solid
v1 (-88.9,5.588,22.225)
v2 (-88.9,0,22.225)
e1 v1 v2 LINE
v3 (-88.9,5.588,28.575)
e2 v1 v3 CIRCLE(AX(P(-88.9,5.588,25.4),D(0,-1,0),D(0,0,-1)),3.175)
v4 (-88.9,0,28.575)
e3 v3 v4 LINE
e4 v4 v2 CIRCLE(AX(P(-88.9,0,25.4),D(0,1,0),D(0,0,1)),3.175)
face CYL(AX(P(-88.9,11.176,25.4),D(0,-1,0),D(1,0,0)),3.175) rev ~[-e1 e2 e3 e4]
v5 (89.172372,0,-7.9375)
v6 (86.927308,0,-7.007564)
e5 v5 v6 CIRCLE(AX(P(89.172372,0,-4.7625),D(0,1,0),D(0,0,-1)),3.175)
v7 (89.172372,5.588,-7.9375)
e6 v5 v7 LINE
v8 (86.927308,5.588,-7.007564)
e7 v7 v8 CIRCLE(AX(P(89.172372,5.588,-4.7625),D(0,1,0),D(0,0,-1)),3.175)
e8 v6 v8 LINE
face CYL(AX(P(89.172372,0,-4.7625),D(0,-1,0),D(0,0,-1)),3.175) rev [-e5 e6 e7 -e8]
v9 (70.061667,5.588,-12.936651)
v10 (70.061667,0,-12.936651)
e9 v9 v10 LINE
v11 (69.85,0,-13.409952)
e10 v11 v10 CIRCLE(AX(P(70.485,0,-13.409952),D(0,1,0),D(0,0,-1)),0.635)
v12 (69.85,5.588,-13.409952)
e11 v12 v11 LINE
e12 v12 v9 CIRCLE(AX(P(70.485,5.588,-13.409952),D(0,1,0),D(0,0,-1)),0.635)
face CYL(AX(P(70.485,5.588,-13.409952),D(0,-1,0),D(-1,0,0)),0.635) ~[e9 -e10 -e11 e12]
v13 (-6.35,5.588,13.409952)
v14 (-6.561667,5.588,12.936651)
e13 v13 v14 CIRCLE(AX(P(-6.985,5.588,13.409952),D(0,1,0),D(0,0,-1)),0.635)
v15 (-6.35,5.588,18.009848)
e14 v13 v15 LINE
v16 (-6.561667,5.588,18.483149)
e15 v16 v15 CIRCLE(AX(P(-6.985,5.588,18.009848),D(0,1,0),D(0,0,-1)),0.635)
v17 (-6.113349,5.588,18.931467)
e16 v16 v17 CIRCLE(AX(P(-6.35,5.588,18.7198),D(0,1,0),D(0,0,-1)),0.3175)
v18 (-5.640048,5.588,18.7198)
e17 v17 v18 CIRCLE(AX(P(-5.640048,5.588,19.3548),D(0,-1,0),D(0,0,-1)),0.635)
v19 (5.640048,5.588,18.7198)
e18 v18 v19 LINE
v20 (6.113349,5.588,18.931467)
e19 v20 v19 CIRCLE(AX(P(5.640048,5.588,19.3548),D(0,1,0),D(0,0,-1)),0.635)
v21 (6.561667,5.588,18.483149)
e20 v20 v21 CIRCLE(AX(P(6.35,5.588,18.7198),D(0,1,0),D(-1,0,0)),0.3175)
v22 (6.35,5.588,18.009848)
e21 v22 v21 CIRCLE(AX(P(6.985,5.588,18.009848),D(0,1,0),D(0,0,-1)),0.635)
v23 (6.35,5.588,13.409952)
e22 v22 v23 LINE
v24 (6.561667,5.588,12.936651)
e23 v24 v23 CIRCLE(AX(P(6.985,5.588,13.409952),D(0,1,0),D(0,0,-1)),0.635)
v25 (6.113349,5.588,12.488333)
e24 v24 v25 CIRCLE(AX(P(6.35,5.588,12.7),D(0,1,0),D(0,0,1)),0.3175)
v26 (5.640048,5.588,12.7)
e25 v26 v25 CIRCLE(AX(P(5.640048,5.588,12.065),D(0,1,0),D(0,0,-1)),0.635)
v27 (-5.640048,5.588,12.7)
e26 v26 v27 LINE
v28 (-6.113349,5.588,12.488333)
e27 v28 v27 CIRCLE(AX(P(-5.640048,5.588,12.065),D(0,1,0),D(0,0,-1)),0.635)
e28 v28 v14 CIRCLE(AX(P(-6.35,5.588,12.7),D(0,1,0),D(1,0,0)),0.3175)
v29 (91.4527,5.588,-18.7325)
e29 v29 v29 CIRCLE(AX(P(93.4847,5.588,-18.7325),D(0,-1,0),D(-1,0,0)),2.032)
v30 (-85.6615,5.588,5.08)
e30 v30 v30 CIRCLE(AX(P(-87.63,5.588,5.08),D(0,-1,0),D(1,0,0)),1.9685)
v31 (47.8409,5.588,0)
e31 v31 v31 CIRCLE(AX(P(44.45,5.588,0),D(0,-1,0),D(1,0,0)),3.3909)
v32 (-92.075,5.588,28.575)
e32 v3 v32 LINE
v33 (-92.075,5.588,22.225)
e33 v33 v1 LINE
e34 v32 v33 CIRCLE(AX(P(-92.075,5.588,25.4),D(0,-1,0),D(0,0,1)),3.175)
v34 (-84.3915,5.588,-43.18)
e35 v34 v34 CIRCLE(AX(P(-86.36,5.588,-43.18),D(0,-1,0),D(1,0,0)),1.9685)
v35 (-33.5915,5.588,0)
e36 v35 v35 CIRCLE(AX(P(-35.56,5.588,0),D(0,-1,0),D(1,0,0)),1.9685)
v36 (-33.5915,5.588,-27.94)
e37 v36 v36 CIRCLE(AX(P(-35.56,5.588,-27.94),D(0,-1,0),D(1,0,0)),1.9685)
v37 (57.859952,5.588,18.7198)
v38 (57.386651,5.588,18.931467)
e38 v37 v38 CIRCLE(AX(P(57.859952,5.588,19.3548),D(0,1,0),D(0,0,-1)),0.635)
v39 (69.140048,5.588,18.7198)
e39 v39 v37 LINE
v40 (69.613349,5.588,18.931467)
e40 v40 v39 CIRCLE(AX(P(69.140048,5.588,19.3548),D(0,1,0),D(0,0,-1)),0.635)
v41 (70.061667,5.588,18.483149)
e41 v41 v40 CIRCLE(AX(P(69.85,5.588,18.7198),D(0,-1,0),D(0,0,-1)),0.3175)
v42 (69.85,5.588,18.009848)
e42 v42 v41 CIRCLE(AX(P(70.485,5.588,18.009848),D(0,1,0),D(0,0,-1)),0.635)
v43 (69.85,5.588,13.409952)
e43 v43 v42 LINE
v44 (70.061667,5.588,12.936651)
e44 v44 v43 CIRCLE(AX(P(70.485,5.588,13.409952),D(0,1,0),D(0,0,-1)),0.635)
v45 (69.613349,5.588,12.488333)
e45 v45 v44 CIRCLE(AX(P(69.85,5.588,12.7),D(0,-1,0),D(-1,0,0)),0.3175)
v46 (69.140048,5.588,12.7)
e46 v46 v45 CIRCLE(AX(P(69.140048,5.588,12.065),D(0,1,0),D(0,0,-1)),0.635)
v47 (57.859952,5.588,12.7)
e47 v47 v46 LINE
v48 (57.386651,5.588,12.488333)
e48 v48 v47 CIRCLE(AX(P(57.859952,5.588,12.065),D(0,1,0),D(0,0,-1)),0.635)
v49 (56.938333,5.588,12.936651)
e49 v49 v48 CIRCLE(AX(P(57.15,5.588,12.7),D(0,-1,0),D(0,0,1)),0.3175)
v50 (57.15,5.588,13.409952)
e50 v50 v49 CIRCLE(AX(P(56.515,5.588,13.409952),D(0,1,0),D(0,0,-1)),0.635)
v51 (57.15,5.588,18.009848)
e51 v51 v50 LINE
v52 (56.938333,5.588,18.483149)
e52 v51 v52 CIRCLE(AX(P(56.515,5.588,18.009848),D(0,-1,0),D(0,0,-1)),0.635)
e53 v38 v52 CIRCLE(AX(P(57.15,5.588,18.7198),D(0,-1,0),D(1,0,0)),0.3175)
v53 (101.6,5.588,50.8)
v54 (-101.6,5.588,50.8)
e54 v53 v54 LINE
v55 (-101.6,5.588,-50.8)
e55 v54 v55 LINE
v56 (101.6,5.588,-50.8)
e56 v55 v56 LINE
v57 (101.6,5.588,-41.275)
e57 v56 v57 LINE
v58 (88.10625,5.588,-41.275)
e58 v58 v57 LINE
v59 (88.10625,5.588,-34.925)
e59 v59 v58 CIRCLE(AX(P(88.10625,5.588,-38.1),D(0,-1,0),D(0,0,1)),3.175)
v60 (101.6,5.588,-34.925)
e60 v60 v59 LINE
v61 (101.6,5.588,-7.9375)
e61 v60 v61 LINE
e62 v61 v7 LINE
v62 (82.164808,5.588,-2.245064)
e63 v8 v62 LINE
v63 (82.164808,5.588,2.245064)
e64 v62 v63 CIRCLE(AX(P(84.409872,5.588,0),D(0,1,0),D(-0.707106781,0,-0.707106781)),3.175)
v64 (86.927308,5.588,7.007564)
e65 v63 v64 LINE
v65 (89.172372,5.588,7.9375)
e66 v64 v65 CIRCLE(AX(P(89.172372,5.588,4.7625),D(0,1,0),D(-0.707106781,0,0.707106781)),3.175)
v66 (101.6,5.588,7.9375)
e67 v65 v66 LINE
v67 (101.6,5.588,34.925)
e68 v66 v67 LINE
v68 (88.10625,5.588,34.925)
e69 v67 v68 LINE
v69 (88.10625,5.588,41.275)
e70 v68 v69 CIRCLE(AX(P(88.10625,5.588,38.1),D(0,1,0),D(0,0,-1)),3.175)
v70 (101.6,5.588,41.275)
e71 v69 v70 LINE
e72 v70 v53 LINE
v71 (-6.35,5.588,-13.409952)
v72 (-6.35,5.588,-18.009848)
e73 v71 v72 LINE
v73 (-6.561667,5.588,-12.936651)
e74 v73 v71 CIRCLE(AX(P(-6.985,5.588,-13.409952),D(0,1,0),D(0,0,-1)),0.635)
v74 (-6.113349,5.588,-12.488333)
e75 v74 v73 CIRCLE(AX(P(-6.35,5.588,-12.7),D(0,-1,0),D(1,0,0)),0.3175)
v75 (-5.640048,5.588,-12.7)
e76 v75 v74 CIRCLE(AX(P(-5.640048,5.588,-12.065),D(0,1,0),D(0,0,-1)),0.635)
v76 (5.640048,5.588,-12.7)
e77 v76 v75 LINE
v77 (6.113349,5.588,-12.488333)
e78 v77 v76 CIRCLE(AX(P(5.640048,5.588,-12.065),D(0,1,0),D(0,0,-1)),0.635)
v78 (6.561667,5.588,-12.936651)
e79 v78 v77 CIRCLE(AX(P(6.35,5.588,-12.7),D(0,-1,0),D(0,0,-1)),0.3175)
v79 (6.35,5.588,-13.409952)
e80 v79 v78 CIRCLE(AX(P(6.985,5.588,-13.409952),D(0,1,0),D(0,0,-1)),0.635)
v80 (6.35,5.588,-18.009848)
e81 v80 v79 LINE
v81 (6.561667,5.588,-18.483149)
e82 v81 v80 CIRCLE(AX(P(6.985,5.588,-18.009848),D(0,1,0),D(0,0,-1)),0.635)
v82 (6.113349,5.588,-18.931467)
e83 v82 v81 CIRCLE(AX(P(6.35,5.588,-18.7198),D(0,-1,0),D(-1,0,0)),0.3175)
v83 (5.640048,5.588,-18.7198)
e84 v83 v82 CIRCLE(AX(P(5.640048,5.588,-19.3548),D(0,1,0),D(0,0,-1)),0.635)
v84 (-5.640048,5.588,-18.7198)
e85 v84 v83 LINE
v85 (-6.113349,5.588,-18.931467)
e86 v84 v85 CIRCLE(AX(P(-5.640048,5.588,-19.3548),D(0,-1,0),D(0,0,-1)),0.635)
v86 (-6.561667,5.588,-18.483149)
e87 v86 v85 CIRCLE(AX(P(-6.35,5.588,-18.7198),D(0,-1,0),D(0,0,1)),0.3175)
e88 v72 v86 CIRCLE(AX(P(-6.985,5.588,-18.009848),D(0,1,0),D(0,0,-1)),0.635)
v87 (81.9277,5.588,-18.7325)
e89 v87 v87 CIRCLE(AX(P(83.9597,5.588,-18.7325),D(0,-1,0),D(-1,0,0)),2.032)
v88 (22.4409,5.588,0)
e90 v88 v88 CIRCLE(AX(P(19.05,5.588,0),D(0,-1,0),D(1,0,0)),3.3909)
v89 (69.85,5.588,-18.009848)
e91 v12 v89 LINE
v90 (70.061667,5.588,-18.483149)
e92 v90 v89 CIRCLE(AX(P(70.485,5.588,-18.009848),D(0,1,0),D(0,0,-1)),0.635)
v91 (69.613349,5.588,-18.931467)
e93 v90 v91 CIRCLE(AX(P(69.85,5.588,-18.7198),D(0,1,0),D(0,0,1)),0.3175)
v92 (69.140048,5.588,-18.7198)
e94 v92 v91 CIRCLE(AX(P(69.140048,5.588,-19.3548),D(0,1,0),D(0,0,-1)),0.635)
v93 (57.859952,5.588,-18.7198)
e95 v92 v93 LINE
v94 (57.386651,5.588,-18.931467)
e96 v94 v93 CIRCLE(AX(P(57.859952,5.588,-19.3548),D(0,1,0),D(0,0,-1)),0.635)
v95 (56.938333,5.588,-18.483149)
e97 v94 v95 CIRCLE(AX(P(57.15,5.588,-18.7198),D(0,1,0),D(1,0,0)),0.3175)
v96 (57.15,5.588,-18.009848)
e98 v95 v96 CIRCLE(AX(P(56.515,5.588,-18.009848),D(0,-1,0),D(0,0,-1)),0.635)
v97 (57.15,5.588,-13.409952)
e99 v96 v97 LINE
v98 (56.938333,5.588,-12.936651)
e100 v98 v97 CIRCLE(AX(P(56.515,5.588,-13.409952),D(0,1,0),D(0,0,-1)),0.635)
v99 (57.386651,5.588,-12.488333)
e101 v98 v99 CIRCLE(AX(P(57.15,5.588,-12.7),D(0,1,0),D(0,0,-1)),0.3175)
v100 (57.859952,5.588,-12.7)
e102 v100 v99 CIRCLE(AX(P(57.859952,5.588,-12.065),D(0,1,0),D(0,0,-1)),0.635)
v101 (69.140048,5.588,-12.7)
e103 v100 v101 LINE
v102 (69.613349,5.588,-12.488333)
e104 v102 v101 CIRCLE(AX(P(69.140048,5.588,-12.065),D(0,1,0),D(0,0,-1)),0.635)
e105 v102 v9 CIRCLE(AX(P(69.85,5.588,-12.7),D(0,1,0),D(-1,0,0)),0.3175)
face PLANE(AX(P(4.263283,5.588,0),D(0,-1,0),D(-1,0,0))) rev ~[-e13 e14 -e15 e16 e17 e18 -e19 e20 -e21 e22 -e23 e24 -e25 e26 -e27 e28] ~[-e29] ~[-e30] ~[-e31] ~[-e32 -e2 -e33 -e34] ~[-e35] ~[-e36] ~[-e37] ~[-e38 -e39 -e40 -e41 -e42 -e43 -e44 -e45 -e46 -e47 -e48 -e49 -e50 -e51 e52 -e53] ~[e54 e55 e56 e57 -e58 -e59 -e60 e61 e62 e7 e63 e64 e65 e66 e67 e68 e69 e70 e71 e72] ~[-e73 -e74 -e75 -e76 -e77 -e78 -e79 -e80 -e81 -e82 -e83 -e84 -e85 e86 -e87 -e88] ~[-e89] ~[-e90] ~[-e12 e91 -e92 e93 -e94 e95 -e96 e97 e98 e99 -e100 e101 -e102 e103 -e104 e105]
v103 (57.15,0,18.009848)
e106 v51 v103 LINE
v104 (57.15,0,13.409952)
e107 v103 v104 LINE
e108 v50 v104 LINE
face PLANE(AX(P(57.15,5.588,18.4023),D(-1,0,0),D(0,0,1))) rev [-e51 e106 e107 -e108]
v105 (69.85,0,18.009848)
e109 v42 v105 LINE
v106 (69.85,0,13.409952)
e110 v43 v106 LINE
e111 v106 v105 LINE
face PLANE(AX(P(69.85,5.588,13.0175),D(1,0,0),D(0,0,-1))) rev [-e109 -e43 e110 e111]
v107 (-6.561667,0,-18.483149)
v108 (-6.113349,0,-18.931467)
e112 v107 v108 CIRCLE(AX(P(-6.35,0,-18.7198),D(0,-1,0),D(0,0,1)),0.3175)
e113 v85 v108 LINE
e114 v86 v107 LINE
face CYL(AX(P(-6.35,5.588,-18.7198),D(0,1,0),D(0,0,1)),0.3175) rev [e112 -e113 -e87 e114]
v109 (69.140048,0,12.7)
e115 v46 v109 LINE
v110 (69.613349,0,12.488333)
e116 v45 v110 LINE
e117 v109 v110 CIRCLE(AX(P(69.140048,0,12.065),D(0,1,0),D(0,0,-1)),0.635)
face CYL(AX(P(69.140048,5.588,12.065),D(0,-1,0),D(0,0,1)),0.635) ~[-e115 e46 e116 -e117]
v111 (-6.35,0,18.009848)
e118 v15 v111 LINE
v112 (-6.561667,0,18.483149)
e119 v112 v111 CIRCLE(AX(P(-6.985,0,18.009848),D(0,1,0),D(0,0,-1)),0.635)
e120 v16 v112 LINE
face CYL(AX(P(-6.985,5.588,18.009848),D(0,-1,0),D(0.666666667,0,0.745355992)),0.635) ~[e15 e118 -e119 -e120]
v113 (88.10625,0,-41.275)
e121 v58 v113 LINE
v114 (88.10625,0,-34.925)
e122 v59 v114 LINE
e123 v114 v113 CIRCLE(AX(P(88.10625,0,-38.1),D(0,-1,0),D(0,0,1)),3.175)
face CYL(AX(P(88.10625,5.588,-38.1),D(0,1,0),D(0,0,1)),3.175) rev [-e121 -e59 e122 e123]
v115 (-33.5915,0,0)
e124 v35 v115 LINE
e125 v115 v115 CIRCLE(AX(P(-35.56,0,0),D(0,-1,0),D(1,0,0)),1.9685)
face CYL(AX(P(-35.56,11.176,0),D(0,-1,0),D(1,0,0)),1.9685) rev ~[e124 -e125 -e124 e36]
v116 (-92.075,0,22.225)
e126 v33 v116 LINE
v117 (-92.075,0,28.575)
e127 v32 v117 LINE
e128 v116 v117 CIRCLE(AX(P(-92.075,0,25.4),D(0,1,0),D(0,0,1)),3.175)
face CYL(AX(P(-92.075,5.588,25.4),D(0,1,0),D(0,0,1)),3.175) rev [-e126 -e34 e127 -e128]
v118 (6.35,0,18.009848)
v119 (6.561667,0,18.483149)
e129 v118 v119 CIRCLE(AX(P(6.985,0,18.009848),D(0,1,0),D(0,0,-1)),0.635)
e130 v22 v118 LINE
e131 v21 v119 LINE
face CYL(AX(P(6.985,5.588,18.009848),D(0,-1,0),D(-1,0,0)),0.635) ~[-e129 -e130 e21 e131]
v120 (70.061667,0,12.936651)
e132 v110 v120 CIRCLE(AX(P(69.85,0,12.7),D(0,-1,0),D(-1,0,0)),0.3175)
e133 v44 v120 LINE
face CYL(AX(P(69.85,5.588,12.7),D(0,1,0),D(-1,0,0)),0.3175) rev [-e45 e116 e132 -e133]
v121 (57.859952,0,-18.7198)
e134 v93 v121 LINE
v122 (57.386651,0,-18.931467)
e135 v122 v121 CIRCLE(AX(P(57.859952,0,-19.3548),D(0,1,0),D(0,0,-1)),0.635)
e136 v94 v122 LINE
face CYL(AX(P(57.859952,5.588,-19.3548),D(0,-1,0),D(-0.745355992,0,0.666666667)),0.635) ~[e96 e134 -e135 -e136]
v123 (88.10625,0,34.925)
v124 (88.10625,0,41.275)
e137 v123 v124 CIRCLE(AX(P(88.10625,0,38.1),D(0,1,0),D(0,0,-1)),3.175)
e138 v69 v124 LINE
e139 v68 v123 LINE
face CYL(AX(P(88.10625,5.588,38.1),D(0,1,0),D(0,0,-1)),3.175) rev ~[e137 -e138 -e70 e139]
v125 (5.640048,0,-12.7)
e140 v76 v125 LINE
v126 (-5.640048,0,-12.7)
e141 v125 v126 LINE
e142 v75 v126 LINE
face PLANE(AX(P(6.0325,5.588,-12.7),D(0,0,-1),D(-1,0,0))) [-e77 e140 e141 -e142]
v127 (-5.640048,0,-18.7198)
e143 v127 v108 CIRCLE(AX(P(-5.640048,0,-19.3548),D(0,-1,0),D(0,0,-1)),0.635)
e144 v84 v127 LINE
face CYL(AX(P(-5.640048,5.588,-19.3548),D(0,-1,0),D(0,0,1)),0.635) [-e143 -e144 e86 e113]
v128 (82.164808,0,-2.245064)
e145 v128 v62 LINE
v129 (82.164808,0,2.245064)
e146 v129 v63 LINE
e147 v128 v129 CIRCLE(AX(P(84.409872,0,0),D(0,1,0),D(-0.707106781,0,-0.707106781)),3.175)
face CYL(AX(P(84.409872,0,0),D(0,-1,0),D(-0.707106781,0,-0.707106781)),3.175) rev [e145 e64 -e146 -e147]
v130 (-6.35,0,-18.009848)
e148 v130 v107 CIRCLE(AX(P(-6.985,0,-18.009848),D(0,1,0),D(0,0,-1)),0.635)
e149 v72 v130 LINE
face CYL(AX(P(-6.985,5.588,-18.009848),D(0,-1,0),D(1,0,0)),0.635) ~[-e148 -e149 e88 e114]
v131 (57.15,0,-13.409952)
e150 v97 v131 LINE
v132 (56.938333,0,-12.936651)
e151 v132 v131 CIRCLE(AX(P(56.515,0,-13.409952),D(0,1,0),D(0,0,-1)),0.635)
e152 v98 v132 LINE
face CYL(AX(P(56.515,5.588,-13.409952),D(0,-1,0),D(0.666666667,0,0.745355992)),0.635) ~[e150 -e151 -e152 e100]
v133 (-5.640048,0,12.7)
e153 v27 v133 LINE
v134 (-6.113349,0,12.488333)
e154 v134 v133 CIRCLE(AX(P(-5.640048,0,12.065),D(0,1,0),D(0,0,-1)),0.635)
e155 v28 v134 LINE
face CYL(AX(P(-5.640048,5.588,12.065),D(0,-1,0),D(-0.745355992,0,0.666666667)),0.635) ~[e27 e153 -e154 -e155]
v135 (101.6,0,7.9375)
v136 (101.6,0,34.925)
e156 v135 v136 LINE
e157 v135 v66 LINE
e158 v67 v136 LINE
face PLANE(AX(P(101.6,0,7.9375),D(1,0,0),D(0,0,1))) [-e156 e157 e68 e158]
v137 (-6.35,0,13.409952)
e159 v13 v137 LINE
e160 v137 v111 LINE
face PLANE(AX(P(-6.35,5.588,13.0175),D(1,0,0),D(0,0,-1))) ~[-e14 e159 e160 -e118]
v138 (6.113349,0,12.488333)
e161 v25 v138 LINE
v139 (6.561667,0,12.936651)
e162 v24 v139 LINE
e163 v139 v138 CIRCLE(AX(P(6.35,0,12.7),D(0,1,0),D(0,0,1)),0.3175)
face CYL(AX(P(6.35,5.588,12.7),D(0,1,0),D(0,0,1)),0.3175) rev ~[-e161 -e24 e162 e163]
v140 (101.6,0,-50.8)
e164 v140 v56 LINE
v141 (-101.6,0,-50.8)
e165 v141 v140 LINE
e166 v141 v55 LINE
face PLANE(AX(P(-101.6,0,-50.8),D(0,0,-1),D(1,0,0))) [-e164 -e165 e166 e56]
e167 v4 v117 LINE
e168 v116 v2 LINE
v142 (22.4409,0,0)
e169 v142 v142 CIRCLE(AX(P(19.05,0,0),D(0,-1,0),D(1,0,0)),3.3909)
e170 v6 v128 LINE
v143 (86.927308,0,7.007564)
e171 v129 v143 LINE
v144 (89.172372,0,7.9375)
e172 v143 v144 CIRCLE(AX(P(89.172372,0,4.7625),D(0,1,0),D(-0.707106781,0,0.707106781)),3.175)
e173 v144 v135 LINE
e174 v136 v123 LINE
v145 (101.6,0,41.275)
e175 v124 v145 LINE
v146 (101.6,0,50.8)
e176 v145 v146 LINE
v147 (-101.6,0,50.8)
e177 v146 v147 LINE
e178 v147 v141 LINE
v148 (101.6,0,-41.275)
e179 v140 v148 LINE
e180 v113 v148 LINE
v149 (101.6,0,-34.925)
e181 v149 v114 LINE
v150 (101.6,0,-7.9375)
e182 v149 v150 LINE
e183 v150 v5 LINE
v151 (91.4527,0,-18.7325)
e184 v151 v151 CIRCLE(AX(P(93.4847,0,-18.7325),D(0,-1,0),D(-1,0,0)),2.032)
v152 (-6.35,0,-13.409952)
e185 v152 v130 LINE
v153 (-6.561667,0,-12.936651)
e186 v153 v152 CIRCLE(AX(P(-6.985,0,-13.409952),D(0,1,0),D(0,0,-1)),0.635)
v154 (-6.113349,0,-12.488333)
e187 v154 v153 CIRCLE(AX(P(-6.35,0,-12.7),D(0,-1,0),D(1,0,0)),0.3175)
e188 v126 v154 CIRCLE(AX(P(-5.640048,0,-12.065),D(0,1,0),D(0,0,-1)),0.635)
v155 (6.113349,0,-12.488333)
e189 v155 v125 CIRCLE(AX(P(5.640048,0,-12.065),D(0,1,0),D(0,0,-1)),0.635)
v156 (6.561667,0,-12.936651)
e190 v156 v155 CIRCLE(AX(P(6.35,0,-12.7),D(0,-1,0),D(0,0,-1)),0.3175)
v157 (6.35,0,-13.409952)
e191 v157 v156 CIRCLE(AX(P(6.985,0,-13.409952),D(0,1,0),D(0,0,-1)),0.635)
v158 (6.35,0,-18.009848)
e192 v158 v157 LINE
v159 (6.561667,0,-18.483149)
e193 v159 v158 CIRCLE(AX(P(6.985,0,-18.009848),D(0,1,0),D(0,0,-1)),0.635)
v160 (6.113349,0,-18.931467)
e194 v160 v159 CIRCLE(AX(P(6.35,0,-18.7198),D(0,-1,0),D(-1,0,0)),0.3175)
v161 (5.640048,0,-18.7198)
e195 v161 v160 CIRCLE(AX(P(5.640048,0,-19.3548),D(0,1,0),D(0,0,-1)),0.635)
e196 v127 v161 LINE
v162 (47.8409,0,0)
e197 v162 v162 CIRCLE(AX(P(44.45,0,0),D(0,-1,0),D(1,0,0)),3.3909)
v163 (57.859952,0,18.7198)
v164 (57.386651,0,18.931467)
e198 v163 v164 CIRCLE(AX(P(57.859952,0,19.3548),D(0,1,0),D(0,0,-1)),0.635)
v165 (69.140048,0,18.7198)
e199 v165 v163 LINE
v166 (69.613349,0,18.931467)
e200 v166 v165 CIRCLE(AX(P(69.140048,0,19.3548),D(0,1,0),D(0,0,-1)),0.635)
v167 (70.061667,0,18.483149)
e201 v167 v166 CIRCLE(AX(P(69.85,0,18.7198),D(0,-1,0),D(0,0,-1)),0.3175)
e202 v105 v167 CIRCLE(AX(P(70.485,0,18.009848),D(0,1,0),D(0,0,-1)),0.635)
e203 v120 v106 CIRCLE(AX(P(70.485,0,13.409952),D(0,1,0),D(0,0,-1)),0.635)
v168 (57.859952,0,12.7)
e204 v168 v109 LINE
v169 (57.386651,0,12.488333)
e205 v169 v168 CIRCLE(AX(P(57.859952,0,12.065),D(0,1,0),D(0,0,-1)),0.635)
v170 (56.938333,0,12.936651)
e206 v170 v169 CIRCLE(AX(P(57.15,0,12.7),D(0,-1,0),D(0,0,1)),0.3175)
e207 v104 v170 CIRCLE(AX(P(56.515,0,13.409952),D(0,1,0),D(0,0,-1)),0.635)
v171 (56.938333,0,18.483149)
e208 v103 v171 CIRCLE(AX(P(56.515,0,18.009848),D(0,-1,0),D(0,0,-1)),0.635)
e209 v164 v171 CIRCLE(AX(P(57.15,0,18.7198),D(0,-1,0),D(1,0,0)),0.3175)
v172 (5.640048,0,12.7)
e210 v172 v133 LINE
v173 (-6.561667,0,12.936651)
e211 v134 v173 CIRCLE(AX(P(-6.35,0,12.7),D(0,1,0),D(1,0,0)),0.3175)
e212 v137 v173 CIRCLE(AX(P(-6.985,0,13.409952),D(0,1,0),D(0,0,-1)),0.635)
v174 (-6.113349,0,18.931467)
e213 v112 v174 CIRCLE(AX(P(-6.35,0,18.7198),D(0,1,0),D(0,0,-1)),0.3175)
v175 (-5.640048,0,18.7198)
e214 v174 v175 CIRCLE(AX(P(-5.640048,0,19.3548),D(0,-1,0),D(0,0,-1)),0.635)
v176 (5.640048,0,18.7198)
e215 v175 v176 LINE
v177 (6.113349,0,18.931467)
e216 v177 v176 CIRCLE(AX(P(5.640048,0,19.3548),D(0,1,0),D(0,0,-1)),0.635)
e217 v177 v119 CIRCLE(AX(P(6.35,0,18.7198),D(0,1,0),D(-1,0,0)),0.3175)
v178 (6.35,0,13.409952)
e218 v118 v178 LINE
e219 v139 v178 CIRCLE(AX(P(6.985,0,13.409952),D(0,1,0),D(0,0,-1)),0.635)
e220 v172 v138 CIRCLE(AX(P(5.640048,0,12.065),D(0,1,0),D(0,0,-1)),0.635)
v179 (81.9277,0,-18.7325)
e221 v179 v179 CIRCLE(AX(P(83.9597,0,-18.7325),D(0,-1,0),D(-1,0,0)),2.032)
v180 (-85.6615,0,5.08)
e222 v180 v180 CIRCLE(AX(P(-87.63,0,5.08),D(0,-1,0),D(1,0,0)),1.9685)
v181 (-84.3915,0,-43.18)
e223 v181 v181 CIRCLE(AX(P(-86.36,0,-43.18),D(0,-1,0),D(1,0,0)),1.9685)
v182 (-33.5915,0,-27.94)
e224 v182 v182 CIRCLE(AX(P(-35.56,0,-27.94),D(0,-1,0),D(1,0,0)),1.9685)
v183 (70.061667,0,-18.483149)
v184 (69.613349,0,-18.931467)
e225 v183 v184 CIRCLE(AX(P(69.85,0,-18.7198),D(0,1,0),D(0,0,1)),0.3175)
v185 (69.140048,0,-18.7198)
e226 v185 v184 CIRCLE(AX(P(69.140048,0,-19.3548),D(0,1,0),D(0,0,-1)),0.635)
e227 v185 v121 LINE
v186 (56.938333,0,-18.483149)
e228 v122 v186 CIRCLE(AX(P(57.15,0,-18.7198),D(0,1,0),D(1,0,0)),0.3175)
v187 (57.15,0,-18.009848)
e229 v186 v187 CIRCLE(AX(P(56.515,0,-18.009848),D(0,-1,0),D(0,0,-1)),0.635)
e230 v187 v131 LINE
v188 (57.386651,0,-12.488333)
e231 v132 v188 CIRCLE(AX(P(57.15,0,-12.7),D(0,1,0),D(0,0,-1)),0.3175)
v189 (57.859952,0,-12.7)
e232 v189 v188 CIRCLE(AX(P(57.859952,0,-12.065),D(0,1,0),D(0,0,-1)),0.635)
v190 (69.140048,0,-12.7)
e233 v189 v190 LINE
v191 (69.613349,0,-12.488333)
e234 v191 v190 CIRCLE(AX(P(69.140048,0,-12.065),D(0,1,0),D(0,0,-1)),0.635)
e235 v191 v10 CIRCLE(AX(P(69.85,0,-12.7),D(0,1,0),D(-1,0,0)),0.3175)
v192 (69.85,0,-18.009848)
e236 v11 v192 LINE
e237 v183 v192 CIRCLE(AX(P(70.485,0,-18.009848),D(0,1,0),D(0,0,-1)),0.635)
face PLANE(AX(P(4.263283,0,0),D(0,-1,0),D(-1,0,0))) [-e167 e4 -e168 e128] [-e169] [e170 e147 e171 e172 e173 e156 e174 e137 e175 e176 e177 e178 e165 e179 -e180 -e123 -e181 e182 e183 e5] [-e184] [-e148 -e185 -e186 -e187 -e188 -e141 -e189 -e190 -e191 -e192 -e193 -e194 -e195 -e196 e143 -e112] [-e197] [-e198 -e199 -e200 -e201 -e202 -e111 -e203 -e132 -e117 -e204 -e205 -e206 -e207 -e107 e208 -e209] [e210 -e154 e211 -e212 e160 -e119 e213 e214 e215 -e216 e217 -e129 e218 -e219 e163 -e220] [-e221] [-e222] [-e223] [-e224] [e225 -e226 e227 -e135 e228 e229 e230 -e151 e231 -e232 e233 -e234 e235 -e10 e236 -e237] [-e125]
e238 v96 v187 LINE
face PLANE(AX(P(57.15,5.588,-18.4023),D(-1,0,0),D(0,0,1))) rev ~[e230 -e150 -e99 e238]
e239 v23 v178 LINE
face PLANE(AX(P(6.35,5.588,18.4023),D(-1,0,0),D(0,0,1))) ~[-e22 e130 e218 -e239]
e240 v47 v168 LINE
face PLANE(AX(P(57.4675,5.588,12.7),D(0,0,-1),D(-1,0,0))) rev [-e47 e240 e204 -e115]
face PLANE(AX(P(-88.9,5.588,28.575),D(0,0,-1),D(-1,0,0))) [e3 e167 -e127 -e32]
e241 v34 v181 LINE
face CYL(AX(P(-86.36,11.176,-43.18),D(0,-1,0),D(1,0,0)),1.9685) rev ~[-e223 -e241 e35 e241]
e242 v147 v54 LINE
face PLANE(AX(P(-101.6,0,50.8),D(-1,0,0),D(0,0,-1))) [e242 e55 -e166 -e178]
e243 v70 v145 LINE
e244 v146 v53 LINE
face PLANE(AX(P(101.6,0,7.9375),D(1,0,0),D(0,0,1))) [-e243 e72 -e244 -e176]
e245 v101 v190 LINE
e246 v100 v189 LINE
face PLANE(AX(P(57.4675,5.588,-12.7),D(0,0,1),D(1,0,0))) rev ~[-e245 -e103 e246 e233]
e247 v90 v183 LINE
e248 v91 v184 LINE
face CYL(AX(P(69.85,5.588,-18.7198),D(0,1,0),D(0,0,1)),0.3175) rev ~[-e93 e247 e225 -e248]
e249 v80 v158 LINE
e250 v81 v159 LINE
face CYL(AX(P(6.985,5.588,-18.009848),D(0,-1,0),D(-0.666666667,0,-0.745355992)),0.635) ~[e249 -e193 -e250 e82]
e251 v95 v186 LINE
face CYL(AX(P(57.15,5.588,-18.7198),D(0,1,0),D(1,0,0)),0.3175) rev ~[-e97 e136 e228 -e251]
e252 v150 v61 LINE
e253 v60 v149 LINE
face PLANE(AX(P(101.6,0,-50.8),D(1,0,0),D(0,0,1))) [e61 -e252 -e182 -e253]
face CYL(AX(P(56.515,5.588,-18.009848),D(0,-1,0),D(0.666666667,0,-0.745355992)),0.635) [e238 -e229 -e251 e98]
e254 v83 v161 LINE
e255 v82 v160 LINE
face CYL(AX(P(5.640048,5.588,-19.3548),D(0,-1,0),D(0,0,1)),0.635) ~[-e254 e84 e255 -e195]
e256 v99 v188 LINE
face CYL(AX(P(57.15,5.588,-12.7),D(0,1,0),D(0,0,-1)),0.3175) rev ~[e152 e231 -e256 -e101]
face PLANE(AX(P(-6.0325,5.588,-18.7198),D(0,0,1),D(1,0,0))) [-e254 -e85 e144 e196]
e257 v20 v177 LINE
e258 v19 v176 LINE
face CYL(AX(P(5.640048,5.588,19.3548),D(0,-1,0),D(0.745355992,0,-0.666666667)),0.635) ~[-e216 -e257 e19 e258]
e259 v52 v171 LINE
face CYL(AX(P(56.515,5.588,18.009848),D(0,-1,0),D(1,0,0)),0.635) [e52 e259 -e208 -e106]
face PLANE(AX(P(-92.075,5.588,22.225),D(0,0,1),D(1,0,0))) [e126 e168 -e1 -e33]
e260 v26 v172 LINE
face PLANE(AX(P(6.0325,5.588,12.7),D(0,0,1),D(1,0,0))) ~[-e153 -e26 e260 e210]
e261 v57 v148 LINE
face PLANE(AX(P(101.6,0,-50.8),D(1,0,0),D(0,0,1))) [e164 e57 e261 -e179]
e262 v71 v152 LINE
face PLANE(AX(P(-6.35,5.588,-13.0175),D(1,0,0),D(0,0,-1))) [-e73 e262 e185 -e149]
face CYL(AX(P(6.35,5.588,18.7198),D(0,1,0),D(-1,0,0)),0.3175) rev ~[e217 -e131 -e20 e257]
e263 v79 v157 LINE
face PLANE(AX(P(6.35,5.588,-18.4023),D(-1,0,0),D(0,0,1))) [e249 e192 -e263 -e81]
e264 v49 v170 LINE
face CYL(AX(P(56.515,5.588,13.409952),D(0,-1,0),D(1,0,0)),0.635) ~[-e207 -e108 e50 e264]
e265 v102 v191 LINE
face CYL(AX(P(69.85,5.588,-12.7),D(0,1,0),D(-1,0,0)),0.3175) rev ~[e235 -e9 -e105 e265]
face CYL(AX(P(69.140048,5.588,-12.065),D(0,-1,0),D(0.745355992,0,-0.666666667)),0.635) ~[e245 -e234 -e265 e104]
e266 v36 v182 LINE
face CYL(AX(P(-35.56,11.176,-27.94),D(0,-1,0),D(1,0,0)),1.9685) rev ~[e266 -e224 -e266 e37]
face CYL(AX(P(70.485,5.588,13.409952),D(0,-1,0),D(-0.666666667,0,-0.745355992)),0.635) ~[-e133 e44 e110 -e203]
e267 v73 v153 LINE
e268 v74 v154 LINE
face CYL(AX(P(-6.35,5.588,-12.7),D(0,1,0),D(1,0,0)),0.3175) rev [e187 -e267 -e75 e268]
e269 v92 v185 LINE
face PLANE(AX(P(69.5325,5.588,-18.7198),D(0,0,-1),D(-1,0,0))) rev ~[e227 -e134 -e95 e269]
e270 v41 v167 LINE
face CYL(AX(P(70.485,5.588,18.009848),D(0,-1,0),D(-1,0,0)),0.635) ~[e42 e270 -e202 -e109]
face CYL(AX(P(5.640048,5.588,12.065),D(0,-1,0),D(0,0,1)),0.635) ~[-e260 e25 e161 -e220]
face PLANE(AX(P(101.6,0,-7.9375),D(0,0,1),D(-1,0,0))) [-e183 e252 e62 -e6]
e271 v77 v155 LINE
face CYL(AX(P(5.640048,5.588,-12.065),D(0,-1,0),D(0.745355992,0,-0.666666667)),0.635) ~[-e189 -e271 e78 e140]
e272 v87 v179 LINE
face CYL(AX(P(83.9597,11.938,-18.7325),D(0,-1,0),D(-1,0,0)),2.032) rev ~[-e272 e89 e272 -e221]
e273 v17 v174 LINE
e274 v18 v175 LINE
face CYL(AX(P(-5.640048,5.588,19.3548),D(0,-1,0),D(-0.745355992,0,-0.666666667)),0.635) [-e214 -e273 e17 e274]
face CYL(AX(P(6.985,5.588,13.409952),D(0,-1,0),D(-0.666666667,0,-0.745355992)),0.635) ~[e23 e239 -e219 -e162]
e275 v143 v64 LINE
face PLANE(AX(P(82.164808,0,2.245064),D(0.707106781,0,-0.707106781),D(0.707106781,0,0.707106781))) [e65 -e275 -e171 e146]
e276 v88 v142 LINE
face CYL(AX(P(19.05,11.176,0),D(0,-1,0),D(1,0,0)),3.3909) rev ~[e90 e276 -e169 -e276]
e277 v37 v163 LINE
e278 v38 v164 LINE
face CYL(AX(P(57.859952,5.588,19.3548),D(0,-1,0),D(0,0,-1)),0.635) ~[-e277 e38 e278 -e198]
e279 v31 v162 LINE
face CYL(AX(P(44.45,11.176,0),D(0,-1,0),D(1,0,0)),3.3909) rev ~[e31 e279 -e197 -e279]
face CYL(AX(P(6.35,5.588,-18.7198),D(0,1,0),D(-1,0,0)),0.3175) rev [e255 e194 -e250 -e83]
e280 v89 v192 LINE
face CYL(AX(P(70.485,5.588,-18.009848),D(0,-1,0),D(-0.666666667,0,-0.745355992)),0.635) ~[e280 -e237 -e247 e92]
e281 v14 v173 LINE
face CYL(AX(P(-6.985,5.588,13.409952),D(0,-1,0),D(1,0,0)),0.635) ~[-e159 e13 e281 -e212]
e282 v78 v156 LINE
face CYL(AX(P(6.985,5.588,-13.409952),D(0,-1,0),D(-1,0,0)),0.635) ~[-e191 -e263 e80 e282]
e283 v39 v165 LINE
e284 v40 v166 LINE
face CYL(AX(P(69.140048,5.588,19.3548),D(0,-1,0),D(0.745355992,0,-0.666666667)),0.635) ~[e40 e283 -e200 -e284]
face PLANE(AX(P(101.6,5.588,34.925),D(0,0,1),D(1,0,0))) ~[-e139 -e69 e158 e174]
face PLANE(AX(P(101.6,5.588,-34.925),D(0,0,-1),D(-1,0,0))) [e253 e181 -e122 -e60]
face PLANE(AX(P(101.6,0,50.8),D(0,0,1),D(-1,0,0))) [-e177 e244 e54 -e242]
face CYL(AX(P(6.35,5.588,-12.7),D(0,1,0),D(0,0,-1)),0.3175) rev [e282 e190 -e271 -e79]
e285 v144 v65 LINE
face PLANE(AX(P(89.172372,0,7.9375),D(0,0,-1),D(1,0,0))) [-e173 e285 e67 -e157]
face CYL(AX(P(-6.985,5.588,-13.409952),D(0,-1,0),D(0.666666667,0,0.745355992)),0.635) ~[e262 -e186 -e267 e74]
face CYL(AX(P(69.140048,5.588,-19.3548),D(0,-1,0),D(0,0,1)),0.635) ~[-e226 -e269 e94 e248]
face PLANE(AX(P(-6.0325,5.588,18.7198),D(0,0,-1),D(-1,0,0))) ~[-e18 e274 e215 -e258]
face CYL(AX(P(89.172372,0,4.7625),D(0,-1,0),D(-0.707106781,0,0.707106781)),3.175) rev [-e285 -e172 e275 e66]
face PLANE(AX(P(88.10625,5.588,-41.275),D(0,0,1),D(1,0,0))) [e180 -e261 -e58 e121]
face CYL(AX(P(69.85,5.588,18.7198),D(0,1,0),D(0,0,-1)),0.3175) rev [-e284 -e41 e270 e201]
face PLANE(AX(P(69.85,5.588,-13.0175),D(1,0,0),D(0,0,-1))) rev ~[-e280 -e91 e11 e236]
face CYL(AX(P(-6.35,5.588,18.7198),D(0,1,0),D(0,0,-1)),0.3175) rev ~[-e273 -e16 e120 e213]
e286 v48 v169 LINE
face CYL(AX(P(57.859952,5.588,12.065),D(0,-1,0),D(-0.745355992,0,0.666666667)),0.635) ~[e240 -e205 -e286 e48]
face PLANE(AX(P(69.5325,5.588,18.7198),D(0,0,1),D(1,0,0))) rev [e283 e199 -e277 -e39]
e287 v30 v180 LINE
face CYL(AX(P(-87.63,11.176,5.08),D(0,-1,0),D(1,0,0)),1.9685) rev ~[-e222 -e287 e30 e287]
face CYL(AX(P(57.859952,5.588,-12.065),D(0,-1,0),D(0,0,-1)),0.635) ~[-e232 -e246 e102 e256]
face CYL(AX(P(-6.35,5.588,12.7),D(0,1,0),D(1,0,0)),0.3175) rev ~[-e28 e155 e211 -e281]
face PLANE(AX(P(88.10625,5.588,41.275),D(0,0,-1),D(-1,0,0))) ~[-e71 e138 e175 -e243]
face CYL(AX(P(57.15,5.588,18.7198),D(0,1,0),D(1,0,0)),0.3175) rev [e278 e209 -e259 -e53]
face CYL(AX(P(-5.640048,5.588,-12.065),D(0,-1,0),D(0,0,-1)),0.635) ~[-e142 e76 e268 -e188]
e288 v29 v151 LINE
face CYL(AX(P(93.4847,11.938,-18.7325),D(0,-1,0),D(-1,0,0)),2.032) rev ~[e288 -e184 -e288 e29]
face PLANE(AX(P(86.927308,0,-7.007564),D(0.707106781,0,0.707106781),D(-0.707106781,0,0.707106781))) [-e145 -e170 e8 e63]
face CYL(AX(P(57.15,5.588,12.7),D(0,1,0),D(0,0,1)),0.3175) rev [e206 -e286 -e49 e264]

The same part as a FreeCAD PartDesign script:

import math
import FreeCAD as App
import Part
import Sketcher
from FreeCAD import Vector
Q = App.Units.Quantity


def edges_at(feature, points):
    """Names of the edges that pass closest to the given points."""
    edges = feature.Shape.Edges
    near = lambda p: min(range(len(edges)), key=lambda i: edges[i].distToShape(Part.Vertex(*p))[0])
    return sorted({f"Edge{near(p) + 1}" for p in points})

doc = App.newDocument("Part")
body = doc.addObject("PartDesign::Body", "Body")

# Sketch on XZ plane
sketch1 = body.newObject("Sketcher::SketchObject", "Sketch")
sketch1.AttachmentSupport = (doc.getObject("XZ_Plane"), [""])
sketch1.MapMode = "FlatFace"
sketch1.addGeometry(Part.LineSegment(Vector(101.6, -50.8, 0), Vector(-101.6, -50.8, 0)), False)
sketch1.addGeometry(Part.LineSegment(Vector(-101.6, -50.8, 0), Vector(-101.6, 50.8, 0)), False)
sketch1.addGeometry(Part.LineSegment(Vector(-101.6, 50.8, 0), Vector(101.6, 50.8, 0)), False)
sketch1.addGeometry(Part.LineSegment(Vector(101.6, 50.8, 0), Vector(101.6, 7.9, 0)), False)
sketch1.addGeometry(Part.LineSegment(Vector(101.6, 7.9, 0), Vector(89.2, 7.9, 0)), False)
sketch1.addGeometry(Part.ArcOfCircle(Part.Circle(Vector(89.2, 4.8, 0), Vector(0, 0, 1), 3.2), math.radians(90), math.radians(135)), False)
sketch1.addGeometry(Part.LineSegment(Vector(86.9, 7, 0), Vector(82.2, 2.2, 0)), False)
sketch1.addGeometry(Part.ArcOfCircle(Part.Circle(Vector(84.4, 0, 0), Vector(0, 0, 1), 3.2), math.radians(135), math.radians(225)), False)
sketch1.addGeometry(Part.LineSegment(Vector(82.2, -2.2, 0), Vector(86.9, -7, 0)), False)
sketch1.addGeometry(Part.ArcOfCircle(Part.Circle(Vector(89.2, -4.8, 0), Vector(0, 0, 1), 3.2), math.radians(-135), math.radians(-90)), False)
sketch1.addGeometry(Part.LineSegment(Vector(89.2, -7.9, 0), Vector(101.6, -7.9, 0)), False)
sketch1.addGeometry(Part.LineSegment(Vector(101.6, -7.9, 0), Vector(101.6, -50.8, 0)), False)
sketch1.addConstraint(Sketcher.Constraint("Coincident", 0, 2, 1, 1))
sketch1.addConstraint(Sketcher.Constraint("Coincident", 1, 2, 2, 1))
sketch1.addConstraint(Sketcher.Constraint("Coincident", 2, 2, 3, 1))
sketch1.addConstraint(Sketcher.Constraint("Coincident", 3, 2, 4, 1))
sketch1.addConstraint(Sketcher.Constraint("Tangent", 4, 2, 5, 1))
sketch1.addConstraint(Sketcher.Constraint("Tangent", 5, 2, 6, 1))
sketch1.addConstraint(Sketcher.Constraint("Tangent", 6, 2, 7, 1))
sketch1.addConstraint(Sketcher.Constraint("Tangent", 7, 2, 8, 1))
sketch1.addConstraint(Sketcher.Constraint("Tangent", 8, 2, 9, 1))
sketch1.addConstraint(Sketcher.Constraint("Tangent", 9, 2, 10, 1))
sketch1.addConstraint(Sketcher.Constraint("Coincident", 10, 2, 11, 1))
sketch1.addConstraint(Sketcher.Constraint("Coincident", 11, 2, 0, 1))
sketch1.addConstraint(Sketcher.Constraint("Horizontal", 0))
sketch1.addConstraint(Sketcher.Constraint("Vertical", 1))
sketch1.addConstraint(Sketcher.Constraint("Horizontal", 2))
sketch1.addConstraint(Sketcher.Constraint("Vertical", 3))
sketch1.addConstraint(Sketcher.Constraint("Horizontal", 4))
sketch1.addConstraint(Sketcher.Constraint("Horizontal", 10))
sketch1.addConstraint(Sketcher.Constraint("Vertical", 11))
sketch1.addConstraint(Sketcher.Constraint("Equal", 5, 7))
sketch1.addConstraint(Sketcher.Constraint("Equal", 7, 9))
sketch1.addConstraint(Sketcher.Constraint("Symmetric", 0, 2, 2, 2, -1, 1))
sketch1.addConstraint(Sketcher.Constraint("Symmetric", 5, 3, 9, 3, -1))
sketch1.addConstraint(Sketcher.Constraint("PointOnObject", 7, 3, -1))
sketch1.addConstraint(Sketcher.Constraint("Perpendicular", 6, 8))
sketch1.addConstraint(Sketcher.Constraint("Vertical", 3, 2, 10, 2))
sketch1.addConstraint(Sketcher.Constraint("DistanceX", 0, 2, 0, 1, Q("8 in")))
sketch1.addConstraint(Sketcher.Constraint("DistanceY", 1, 1, 1, 2, Q("4 in")))
sketch1.addConstraint(Sketcher.Constraint("Radius", 5, Q("0.125 in")))
sketch1.addConstraint(Sketcher.Constraint("DistanceY", 9, 3, 3, 2, Q("0.5 in")))
sketch1.addConstraint(Sketcher.Constraint("DistanceX", 4, 2, 4, 1, 12.427628))
pad1 = body.newObject("PartDesign::Pad", "Pad")
pad1.Profile = sketch1
pad1.Length = Q("0.22 in")
pad1.Reversed = True

# Sketch on XZ plane
sketch2 = body.newObject("Sketcher::SketchObject", "Sketch001")
sketch2.AttachmentSupport = (doc.getObject("XZ_Plane"), [""])
sketch2.MapMode = "FlatFace"
sketch2.AttachmentOffset = App.Placement(Vector(0, 0, -0.22 * 25.4), App.Rotation())
sketch2.addGeometry(Part.Circle(Vector(88.1, 38.1, 0), Vector(0, 0, 1), 3.2), False)
sketch2.addGeometry(Part.Circle(Vector(88.1, -38.1, 0), Vector(0, 0, 1), 3.2), False)
sketch2.addGeometry(Part.Circle(Vector(-88.9, 25.4, 0), Vector(0, 0, 1), 3.2), False)
sketch2.addConstraint(Sketcher.Constraint("Equal", 0, 1))
sketch2.addConstraint(Sketcher.Constraint("Equal", 1, 2))
sketch2.addConstraint(Sketcher.Constraint("Symmetric", 0, 3, 1, 3, -1))
sketch2.addConstraint(Sketcher.Constraint("Diameter", 0, Q("0.25 in")))
sketch2.addConstraint(Sketcher.Constraint("DistanceY", -1, 1, 2, 3, Q("1 in")))
sketch2.addConstraint(Sketcher.Constraint("DistanceY", 1, 3, 0, 3, Q("3 in")))
sketch2.addConstraint(Sketcher.Constraint("DistanceX", 2, 3, -1, 1, Q("3.5 in")))
sketch2.addConstraint(Sketcher.Constraint("DistanceX", -1, 1, 0, 3, Q("3.46875 in")))
doc.recompute()
hole = body.newObject("PartDesign::Hole", "Hole")
hole.Profile = sketch2
hole.ThreadType = "None"
hole.Diameter = Q("0.25 in")
hole.DepthType = "Dimension"
hole.Depth = Q("0.22 in")
hole.DrillPoint = "Flat"
hole.Reversed = True

# Sketch on XZ plane
sketch3 = body.newObject("Sketcher::SketchObject", "Sketch002")
sketch3.AttachmentSupport = (doc.getObject("XZ_Plane"), [""])
sketch3.MapMode = "FlatFace"
sketch3.AttachmentOffset = App.Placement(Vector(0, 0, -0.22 * 25.4), App.Rotation())
sketch3.addGeometry(Part.LineSegment(Vector(101.6, -41.3, 0), Vector(88.1, -41.3, 0)), False)
sketch3.addGeometry(Part.ArcOfCircle(Part.Circle(Vector(88.1, -38.1, 0), Vector(0, 0, 1), 3.2), math.radians(90), math.radians(270)), False)
sketch3.addGeometry(Part.LineSegment(Vector(88.1, -34.9, 0), Vector(101.6, -34.9, 0)), False)
sketch3.addGeometry(Part.LineSegment(Vector(101.6, -34.9, 0), Vector(101.6, -41.3, 0)), False)
sketch3.addConstraint(Sketcher.Constraint("Tangent", 0, 2, 1, 2))
sketch3.addConstraint(Sketcher.Constraint("Tangent", 1, 1, 2, 1))
sketch3.addConstraint(Sketcher.Constraint("Coincident", 2, 2, 3, 1))
sketch3.addConstraint(Sketcher.Constraint("Coincident", 3, 2, 0, 1))
sketch3.addConstraint(Sketcher.Constraint("Horizontal", 0))
sketch3.addConstraint(Sketcher.Constraint("Horizontal", 2))
sketch3.addConstraint(Sketcher.Constraint("Vertical", 3))
sketch3.addConstraint(Sketcher.Constraint("DistanceX", -1, 1, 2, 2, Q("4 in")))
sketch3.addConstraint(Sketcher.Constraint("Radius", 1, Q("0.125 in")))
sketch3.addConstraint(Sketcher.Constraint("DistanceY", 1, 3, -1, 1, Q("1.5 in")))
sketch3.addConstraint(Sketcher.Constraint("DistanceX", 0, 2, 0, 1, Q("0.53125 in")))
pocket1 = body.newObject("PartDesign::Pocket", "Pocket")
pocket1.Profile = sketch3
pocket1.Length = Q("0.22 in")
pocket1.Reversed = True
doc.recompute()

mirrored = body.newObject("PartDesign::Mirrored", "Mirrored")
mirrored.Originals = [pocket1]
mirrored.MirrorPlane = (doc.getObject("XY_Plane"), [""])
body.Tip = mirrored

# Sketch on XZ plane
sketch4 = body.newObject("Sketcher::SketchObject", "Sketch003")
sketch4.AttachmentSupport = (doc.getObject("XZ_Plane"), [""])
sketch4.MapMode = "FlatFace"
sketch4.AttachmentOffset = App.Placement(Vector(0, 0, -0.22 * 25.4), App.Rotation())
sketch4.addGeometry(Part.LineSegment(Vector(-88.9, 22.2, 0), Vector(-92.1, 22.2, 0)), False)
sketch4.addGeometry(Part.ArcOfCircle(Part.Circle(Vector(-92.1, 25.4, 0), Vector(0, 0, 1), 3.2), math.radians(90), math.radians(270)), False)
sketch4.addGeometry(Part.LineSegment(Vector(-92.1, 28.6, 0), Vector(-88.9, 28.6, 0)), False)
sketch4.addGeometry(Part.ArcOfCircle(Part.Circle(Vector(-88.9, 25.4, 0), Vector(0, 0, 1), 3.2), math.radians(-90), math.radians(90)), False)
sketch4.addConstraint(Sketcher.Constraint("Tangent", 0, 2, 1, 2))
sketch4.addConstraint(Sketcher.Constraint("Tangent", 1, 1, 2, 1))
sketch4.addConstraint(Sketcher.Constraint("Tangent", 2, 2, 3, 2))
sketch4.addConstraint(Sketcher.Constraint("Tangent", 3, 1, 0, 1))
sketch4.addConstraint(Sketcher.Constraint("Horizontal", 0))
sketch4.addConstraint(Sketcher.Constraint("Horizontal", 2))
sketch4.addConstraint(Sketcher.Constraint("DistanceY", -1, 1, 1, 3, Q("1 in")))
sketch4.addConstraint(Sketcher.Constraint("Radius", 1, Q("0.125 in")))
sketch4.addConstraint(Sketcher.Constraint("DistanceX", 3, 3, -1, 1, Q("3.5 in")))
sketch4.addConstraint(Sketcher.Constraint("DistanceX", 0, 2, 0, 1, Q("0.125 in")))
pocket2 = body.newObject("PartDesign::Pocket", "Pocket001")
pocket2.Profile = sketch4
pocket2.Length = Q("0.22 in")
pocket2.Reversed = True

# Sketch on XZ plane
sketch5 = body.newObject("Sketcher::SketchObject", "Sketch004")
sketch5.AttachmentSupport = (doc.getObject("XZ_Plane"), [""])
sketch5.MapMode = "FlatFace"
sketch5.AttachmentOffset = App.Placement(Vector(0, 0, -0.22 * 25.4), App.Rotation())
sketch5.addGeometry(Part.Circle(Vector(-86.4, -43.2, 0), Vector(0, 0, 1), 2), False)
sketch5.addGeometry(Part.Circle(Vector(-35.6, -27.9, 0), Vector(0, 0, 1), 2), False)
sketch5.addGeometry(Part.Circle(Vector(-35.6, 0, 0), Vector(0, 0, 1), 2), False)
sketch5.addGeometry(Part.Circle(Vector(-87.6, 5.1, 0), Vector(0, 0, 1), 2), False)
sketch5.addConstraint(Sketcher.Constraint("Equal", 0, 1))
sketch5.addConstraint(Sketcher.Constraint("Equal", 1, 2))
sketch5.addConstraint(Sketcher.Constraint("Equal", 2, 3))
sketch5.addConstraint(Sketcher.Constraint("PointOnObject", 2, 3, -1))
sketch5.addConstraint(Sketcher.Constraint("Vertical", 1, 3, 2, 3))
sketch5.addConstraint(Sketcher.Constraint("Diameter", 0, Q("0.155 in")))
sketch5.addConstraint(Sketcher.Constraint("DistanceX", 0, 3, 1, 3, Q("2 in")))
sketch5.addConstraint(Sketcher.Constraint("DistanceX", 0, 3, -1, 1, Q("3.4 in")))
sketch5.addConstraint(Sketcher.Constraint("DistanceY", 0, 3, -1, 1, Q("1.7 in")))
sketch5.addConstraint(Sketcher.Constraint("DistanceY", 1, 3, -1, 1, Q("1.1 in")))
sketch5.addConstraint(Sketcher.Constraint("DistanceY", -1, 1, 3, 3, Q("0.2 in")))
sketch5.addConstraint(Sketcher.Constraint("DistanceX", 3, 3, -1, 1, Q("3.45 in")))
doc.recompute()
hole2 = body.newObject("PartDesign::Hole", "Hole001")
hole2.Profile = sketch5
hole2.ThreadType = "None"
hole2.Diameter = Q("0.155 in")
hole2.DepthType = "Dimension"
hole2.Depth = Q("0.22 in")
hole2.DrillPoint = "Flat"
hole2.Reversed = True

# Sketch on XZ plane
sketch6 = body.newObject("Sketcher::SketchObject", "Sketch005")
sketch6.AttachmentSupport = (doc.getObject("XZ_Plane"), [""])
sketch6.MapMode = "FlatFace"
sketch6.AttachmentOffset = App.Placement(Vector(0, 0, -0.22 * 25.4), App.Rotation())
sketch6.addGeometry(Part.LineSegment(Vector(6.03, -18.72, 0), Vector(-6.03, -18.72, 0)), False)
sketch6.addGeometry(Part.ArcOfCircle(Part.Circle(Vector(-6.35, -18.72, 0), Vector(0, 0, 1), 0.32), math.radians(90), math.radians(360)), False)
sketch6.addGeometry(Part.LineSegment(Vector(-6.35, -18.4, 0), Vector(-6.35, -13.02, 0)), False)
sketch6.addGeometry(Part.ArcOfCircle(Part.Circle(Vector(-6.35, -12.7, 0), Vector(0, 0, 1), 0.32), math.radians(0), math.radians(270)), False)
sketch6.addGeometry(Part.LineSegment(Vector(-6.03, -12.7, 0), Vector(6.03, -12.7, 0)), False)
sketch6.addGeometry(Part.ArcOfCircle(Part.Circle(Vector(6.35, -12.7, 0), Vector(0, 0, 1), 0.32), math.radians(-90), math.radians(180)), False)
sketch6.addGeometry(Part.LineSegment(Vector(6.35, -13.02, 0), Vector(6.35, -18.4, 0)), False)
sketch6.addGeometry(Part.ArcOfCircle(Part.Circle(Vector(6.35, -18.72, 0), Vector(0, 0, 1), 0.32), math.radians(180), math.radians(450)), False)
sketch6.addGeometry(Part.LineSegment(Vector(57.15, -18.4, 0), Vector(57.15, -13.02, 0)), False)
sketch6.addGeometry(Part.ArcOfCircle(Part.Circle(Vector(57.15, -12.7, 0), Vector(0, 0, 1), 0.32), math.radians(0), math.radians(270)), False)
sketch6.addGeometry(Part.LineSegment(Vector(57.47, -12.7, 0), Vector(69.53, -12.7, 0)), False)
sketch6.addGeometry(Part.ArcOfCircle(Part.Circle(Vector(69.85, -12.7, 0), Vector(0, 0, 1), 0.32), math.radians(-90), math.radians(180)), False)
sketch6.addGeometry(Part.LineSegment(Vector(69.85, -13.02, 0), Vector(69.85, -18.4, 0)), False)
sketch6.addGeometry(Part.ArcOfCircle(Part.Circle(Vector(69.85, -18.72, 0), Vector(0, 0, 1), 0.32), math.radians(180), math.radians(450)), False)
sketch6.addGeometry(Part.LineSegment(Vector(69.53, -18.72, 0), Vector(57.47, -18.72, 0)), False)
sketch6.addGeometry(Part.ArcOfCircle(Part.Circle(Vector(57.15, -18.72, 0), Vector(0, 0, 1), 0.32), math.radians(90), math.radians(360)), False)
sketch6.addConstraint(Sketcher.Constraint("Coincident", 0, 2, 1, 2))
sketch6.addConstraint(Sketcher.Constraint("Coincident", 1, 1, 2, 1))
sketch6.addConstraint(Sketcher.Constraint("Coincident", 2, 2, 3, 2))
sketch6.addConstraint(Sketcher.Constraint("Coincident", 3, 1, 4, 1))
sketch6.addConstraint(Sketcher.Constraint("Coincident", 4, 2, 5, 2))
sketch6.addConstraint(Sketcher.Constraint("Coincident", 5, 1, 6, 1))
sketch6.addConstraint(Sketcher.Constraint("Coincident", 6, 2, 7, 2))
sketch6.addConstraint(Sketcher.Constraint("Coincident", 7, 1, 0, 1))
sketch6.addConstraint(Sketcher.Constraint("Coincident", 8, 2, 9, 2))
sketch6.addConstraint(Sketcher.Constraint("Coincident", 9, 1, 10, 1))
sketch6.addConstraint(Sketcher.Constraint("Coincident", 10, 2, 11, 2))
sketch6.addConstraint(Sketcher.Constraint("Coincident", 11, 1, 12, 1))
sketch6.addConstraint(Sketcher.Constraint("Coincident", 12, 2, 13, 2))
sketch6.addConstraint(Sketcher.Constraint("Coincident", 13, 1, 14, 1))
sketch6.addConstraint(Sketcher.Constraint("Coincident", 14, 2, 15, 2))
sketch6.addConstraint(Sketcher.Constraint("Coincident", 15, 1, 8, 1))
sketch6.addConstraint(Sketcher.Constraint("Horizontal", 0))
sketch6.addConstraint(Sketcher.Constraint("Vertical", 2))
sketch6.addConstraint(Sketcher.Constraint("Horizontal", 4))
sketch6.addConstraint(Sketcher.Constraint("Vertical", 6))
sketch6.addConstraint(Sketcher.Constraint("Vertical", 8))
sketch6.addConstraint(Sketcher.Constraint("Horizontal", 10))
sketch6.addConstraint(Sketcher.Constraint("Vertical", 12))
sketch6.addConstraint(Sketcher.Constraint("Horizontal", 14))
sketch6.addConstraint(Sketcher.Constraint("Equal", 1, 3))
sketch6.addConstraint(Sketcher.Constraint("Equal", 3, 5))
sketch6.addConstraint(Sketcher.Constraint("Equal", 5, 7))
sketch6.addConstraint(Sketcher.Constraint("Equal", 7, 9))
sketch6.addConstraint(Sketcher.Constraint("Equal", 9, 11))
sketch6.addConstraint(Sketcher.Constraint("Equal", 11, 13))
sketch6.addConstraint(Sketcher.Constraint("Equal", 13, 15))
sketch6.addConstraint(Sketcher.Constraint("Symmetric", 3, 3, 5, 3, -2))
sketch6.addConstraint(Sketcher.Constraint("Symmetric", 1, 3, 7, 3, -2))
sketch6.addConstraint(Sketcher.Constraint("Horizontal", 5, 3, 9, 3))
sketch6.addConstraint(Sketcher.Constraint("Horizontal", 9, 3, 11, 3))
sketch6.addConstraint(Sketcher.Constraint("Horizontal", 7, 3, 13, 3))
sketch6.addConstraint(Sketcher.Constraint("Horizontal", 13, 3, 15, 3))
sketch6.addConstraint(Sketcher.Constraint("Horizontal", 15, 3, 0, 2))
sketch6.addConstraint(Sketcher.Constraint("Horizontal", 11, 3, 3, 1))
sketch6.addConstraint(Sketcher.Constraint("Horizontal", 4, 2, 9, 1))
sketch6.addConstraint(Sketcher.Constraint("Horizontal", 7, 1, 13, 1))
sketch6.addConstraint(Sketcher.Constraint("Vertical", 1, 3, 3, 3))
sketch6.addConstraint(Sketcher.Constraint("Vertical", 11, 3, 13, 3))
sketch6.addConstraint(Sketcher.Constraint("Vertical", 9, 3, 15, 3))
sketch6.addConstraint(Sketcher.Constraint("Vertical", 3, 3, 1, 1))
sketch6.addConstraint(Sketcher.Constraint("Vertical", 7, 3, 5, 1))
sketch6.addConstraint(Sketcher.Constraint("Vertical", 15, 3, 8, 2))
sketch6.addConstraint(Sketcher.Constraint("Vertical", 13, 3, 11, 1))
sketch6.addConstraint(Sketcher.Constraint("Equal", 4, 10))
sketch6.addConstraint(Sketcher.Constraint("DistanceX", 5, 3, 9, 3, Q("2 in")))
sketch6.addConstraint(Sketcher.Constraint("DistanceX", 3, 3, 11, 3, Q("3 in")))
sketch6.addConstraint(Sketcher.Constraint("DistanceY", 3, 3, -1, 1, Q("0.5 in")))
sketch6.addConstraint(Sketcher.Constraint("Radius", 1, Q("0.0125 in")))
sketch6.addConstraint(Sketcher.Constraint("DistanceY", 2, 1, 2, 2, Q("0.212 in")))
pocket3 = body.newObject("PartDesign::Pocket", "Pocket002")
pocket3.Profile = sketch6
pocket3.Length = Q("0.22 in")
pocket3.Reversed = True
doc.recompute()

fillet = body.newObject("PartDesign::Fillet", "Fillet")
fillet.Base = (pocket3, edges_at(pocket3, [
    (-6.35, 2.794, -18.402),
    (-6.032, 2.794, -18.72),
    (6.032, 2.794, -18.72),
    (6.35, 2.794, -18.402),
    (6.35, 2.794, -13.018),
    (6.032, 2.794, -12.7),
    (-6.032, 2.794, -12.7),
    (-6.35, 2.794, -13.018),
    (69.85, 2.794, -13.018),
    (69.532, 2.794, -12.7),
    (57.468, 2.794, -12.7),
    (57.15, 2.794, -13.018),
    (57.15, 2.794, -18.402),
    (57.468, 2.794, -18.72),
    (69.532, 2.794, -18.72),
    (69.85, 2.794, -18.402),
]))
fillet.Radius = Q("0.025 in")
doc.recompute()

mirrored2 = body.newObject("PartDesign::Mirrored", "Mirrored001")
mirrored2.Originals = [pocket3]
mirrored2.MirrorPlane = (doc.getObject("XY_Plane"), [""])
body.Tip = mirrored2
doc.recompute()

fillet2 = body.newObject("PartDesign::Fillet", "Fillet001")
fillet2.Base = (mirrored2, edges_at(mirrored2, [
    (-6.35, 2.794, 18.402),
    (-6.032, 2.794, 18.72),
    (6.032, 2.794, 18.72),
    (6.35, 2.794, 18.402),
    (6.35, 2.794, 13.018),
    (6.032, 2.794, 12.7),
    (-6.032, 2.794, 12.7),
    (-6.35, 2.794, 13.018),
    (69.85, 2.794, 13.018),
    (69.532, 2.794, 12.7),
    (57.468, 2.794, 12.7),
    (57.15, 2.794, 13.018),
    (57.15, 2.794, 18.402),
    (57.468, 2.794, 18.72),
    (69.532, 2.794, 18.72),
    (69.85, 2.794, 18.402),
]))
fillet2.Radius = Q("0.025 in")

# Sketch on XZ plane
sketch7 = body.newObject("Sketcher::SketchObject", "Sketch006")
sketch7.AttachmentSupport = (doc.getObject("XZ_Plane"), [""])
sketch7.MapMode = "FlatFace"
sketch7.AttachmentOffset = App.Placement(Vector(0, 0, -0.22 * 25.4), App.Rotation())
sketch7.addGeometry(Part.Circle(Vector(19.1, 0, 0), Vector(0, 0, 1), 3.4), False)
sketch7.addGeometry(Part.Circle(Vector(44.5, 0, 0), Vector(0, 0, 1), 3.4), False)
sketch7.addConstraint(Sketcher.Constraint("Equal", 0, 1))
sketch7.addConstraint(Sketcher.Constraint("PointOnObject", 0, 3, -1))
sketch7.addConstraint(Sketcher.Constraint("PointOnObject", 1, 3, -1))
sketch7.addConstraint(Sketcher.Constraint("Diameter", 0, Q("0.267 in")))
sketch7.addConstraint(Sketcher.Constraint("DistanceX", 0, 3, 1, 3, Q("1 in")))
sketch7.addConstraint(Sketcher.Constraint("DistanceX", -1, 1, 0, 3, Q("0.75 in")))
doc.recompute()
hole3 = body.newObject("PartDesign::Hole", "Hole002")
hole3.Profile = sketch7
hole3.ThreadType = "None"
hole3.Diameter = Q("0.267 in")
hole3.DepthType = "Dimension"
hole3.Depth = Q("0.22 in")
hole3.DrillPoint = "Flat"
hole3.Reversed = True

# Sketch on XZ plane
sketch8 = body.newObject("Sketcher::SketchObject", "Sketch007")
sketch8.AttachmentSupport = (doc.getObject("XZ_Plane"), [""])
sketch8.MapMode = "FlatFace"
sketch8.AttachmentOffset = App.Placement(Vector(0, 0, -0.22 * 25.4), App.Rotation())
sketch8.addGeometry(Part.Circle(Vector(93.5, -18.7, 0), Vector(0, 0, 1), 2), False)
sketch8.addGeometry(Part.Circle(Vector(84, -18.7, 0), Vector(0, 0, 1), 2), False)
sketch8.addConstraint(Sketcher.Constraint("Equal", 0, 1))
sketch8.addConstraint(Sketcher.Constraint("Horizontal", 0, 3, 1, 3))
sketch8.addConstraint(Sketcher.Constraint("Diameter", 0, Q("0.16 in")))
sketch8.addConstraint(Sketcher.Constraint("DistanceX", 1, 3, 0, 3, Q("0.375 in")))
sketch8.addConstraint(Sketcher.Constraint("DistanceX", -1, 1, 0, 3, Q("3.6805 in")))
sketch8.addConstraint(Sketcher.Constraint("DistanceY", 0, 3, -1, 1, Q("0.7375 in")))
doc.recompute()
hole4 = body.newObject("PartDesign::Hole", "Hole003")
hole4.Profile = sketch8
hole4.ThreadType = "None"
hole4.Diameter = Q("0.16 in")
hole4.DepthType = "Dimension"
hole4.Depth = Q("0.25 in")
hole4.DrillPoint = "Angled"
hole4.DrillPointAngle = 118
hole4.Reversed = True

doc.recompute()
